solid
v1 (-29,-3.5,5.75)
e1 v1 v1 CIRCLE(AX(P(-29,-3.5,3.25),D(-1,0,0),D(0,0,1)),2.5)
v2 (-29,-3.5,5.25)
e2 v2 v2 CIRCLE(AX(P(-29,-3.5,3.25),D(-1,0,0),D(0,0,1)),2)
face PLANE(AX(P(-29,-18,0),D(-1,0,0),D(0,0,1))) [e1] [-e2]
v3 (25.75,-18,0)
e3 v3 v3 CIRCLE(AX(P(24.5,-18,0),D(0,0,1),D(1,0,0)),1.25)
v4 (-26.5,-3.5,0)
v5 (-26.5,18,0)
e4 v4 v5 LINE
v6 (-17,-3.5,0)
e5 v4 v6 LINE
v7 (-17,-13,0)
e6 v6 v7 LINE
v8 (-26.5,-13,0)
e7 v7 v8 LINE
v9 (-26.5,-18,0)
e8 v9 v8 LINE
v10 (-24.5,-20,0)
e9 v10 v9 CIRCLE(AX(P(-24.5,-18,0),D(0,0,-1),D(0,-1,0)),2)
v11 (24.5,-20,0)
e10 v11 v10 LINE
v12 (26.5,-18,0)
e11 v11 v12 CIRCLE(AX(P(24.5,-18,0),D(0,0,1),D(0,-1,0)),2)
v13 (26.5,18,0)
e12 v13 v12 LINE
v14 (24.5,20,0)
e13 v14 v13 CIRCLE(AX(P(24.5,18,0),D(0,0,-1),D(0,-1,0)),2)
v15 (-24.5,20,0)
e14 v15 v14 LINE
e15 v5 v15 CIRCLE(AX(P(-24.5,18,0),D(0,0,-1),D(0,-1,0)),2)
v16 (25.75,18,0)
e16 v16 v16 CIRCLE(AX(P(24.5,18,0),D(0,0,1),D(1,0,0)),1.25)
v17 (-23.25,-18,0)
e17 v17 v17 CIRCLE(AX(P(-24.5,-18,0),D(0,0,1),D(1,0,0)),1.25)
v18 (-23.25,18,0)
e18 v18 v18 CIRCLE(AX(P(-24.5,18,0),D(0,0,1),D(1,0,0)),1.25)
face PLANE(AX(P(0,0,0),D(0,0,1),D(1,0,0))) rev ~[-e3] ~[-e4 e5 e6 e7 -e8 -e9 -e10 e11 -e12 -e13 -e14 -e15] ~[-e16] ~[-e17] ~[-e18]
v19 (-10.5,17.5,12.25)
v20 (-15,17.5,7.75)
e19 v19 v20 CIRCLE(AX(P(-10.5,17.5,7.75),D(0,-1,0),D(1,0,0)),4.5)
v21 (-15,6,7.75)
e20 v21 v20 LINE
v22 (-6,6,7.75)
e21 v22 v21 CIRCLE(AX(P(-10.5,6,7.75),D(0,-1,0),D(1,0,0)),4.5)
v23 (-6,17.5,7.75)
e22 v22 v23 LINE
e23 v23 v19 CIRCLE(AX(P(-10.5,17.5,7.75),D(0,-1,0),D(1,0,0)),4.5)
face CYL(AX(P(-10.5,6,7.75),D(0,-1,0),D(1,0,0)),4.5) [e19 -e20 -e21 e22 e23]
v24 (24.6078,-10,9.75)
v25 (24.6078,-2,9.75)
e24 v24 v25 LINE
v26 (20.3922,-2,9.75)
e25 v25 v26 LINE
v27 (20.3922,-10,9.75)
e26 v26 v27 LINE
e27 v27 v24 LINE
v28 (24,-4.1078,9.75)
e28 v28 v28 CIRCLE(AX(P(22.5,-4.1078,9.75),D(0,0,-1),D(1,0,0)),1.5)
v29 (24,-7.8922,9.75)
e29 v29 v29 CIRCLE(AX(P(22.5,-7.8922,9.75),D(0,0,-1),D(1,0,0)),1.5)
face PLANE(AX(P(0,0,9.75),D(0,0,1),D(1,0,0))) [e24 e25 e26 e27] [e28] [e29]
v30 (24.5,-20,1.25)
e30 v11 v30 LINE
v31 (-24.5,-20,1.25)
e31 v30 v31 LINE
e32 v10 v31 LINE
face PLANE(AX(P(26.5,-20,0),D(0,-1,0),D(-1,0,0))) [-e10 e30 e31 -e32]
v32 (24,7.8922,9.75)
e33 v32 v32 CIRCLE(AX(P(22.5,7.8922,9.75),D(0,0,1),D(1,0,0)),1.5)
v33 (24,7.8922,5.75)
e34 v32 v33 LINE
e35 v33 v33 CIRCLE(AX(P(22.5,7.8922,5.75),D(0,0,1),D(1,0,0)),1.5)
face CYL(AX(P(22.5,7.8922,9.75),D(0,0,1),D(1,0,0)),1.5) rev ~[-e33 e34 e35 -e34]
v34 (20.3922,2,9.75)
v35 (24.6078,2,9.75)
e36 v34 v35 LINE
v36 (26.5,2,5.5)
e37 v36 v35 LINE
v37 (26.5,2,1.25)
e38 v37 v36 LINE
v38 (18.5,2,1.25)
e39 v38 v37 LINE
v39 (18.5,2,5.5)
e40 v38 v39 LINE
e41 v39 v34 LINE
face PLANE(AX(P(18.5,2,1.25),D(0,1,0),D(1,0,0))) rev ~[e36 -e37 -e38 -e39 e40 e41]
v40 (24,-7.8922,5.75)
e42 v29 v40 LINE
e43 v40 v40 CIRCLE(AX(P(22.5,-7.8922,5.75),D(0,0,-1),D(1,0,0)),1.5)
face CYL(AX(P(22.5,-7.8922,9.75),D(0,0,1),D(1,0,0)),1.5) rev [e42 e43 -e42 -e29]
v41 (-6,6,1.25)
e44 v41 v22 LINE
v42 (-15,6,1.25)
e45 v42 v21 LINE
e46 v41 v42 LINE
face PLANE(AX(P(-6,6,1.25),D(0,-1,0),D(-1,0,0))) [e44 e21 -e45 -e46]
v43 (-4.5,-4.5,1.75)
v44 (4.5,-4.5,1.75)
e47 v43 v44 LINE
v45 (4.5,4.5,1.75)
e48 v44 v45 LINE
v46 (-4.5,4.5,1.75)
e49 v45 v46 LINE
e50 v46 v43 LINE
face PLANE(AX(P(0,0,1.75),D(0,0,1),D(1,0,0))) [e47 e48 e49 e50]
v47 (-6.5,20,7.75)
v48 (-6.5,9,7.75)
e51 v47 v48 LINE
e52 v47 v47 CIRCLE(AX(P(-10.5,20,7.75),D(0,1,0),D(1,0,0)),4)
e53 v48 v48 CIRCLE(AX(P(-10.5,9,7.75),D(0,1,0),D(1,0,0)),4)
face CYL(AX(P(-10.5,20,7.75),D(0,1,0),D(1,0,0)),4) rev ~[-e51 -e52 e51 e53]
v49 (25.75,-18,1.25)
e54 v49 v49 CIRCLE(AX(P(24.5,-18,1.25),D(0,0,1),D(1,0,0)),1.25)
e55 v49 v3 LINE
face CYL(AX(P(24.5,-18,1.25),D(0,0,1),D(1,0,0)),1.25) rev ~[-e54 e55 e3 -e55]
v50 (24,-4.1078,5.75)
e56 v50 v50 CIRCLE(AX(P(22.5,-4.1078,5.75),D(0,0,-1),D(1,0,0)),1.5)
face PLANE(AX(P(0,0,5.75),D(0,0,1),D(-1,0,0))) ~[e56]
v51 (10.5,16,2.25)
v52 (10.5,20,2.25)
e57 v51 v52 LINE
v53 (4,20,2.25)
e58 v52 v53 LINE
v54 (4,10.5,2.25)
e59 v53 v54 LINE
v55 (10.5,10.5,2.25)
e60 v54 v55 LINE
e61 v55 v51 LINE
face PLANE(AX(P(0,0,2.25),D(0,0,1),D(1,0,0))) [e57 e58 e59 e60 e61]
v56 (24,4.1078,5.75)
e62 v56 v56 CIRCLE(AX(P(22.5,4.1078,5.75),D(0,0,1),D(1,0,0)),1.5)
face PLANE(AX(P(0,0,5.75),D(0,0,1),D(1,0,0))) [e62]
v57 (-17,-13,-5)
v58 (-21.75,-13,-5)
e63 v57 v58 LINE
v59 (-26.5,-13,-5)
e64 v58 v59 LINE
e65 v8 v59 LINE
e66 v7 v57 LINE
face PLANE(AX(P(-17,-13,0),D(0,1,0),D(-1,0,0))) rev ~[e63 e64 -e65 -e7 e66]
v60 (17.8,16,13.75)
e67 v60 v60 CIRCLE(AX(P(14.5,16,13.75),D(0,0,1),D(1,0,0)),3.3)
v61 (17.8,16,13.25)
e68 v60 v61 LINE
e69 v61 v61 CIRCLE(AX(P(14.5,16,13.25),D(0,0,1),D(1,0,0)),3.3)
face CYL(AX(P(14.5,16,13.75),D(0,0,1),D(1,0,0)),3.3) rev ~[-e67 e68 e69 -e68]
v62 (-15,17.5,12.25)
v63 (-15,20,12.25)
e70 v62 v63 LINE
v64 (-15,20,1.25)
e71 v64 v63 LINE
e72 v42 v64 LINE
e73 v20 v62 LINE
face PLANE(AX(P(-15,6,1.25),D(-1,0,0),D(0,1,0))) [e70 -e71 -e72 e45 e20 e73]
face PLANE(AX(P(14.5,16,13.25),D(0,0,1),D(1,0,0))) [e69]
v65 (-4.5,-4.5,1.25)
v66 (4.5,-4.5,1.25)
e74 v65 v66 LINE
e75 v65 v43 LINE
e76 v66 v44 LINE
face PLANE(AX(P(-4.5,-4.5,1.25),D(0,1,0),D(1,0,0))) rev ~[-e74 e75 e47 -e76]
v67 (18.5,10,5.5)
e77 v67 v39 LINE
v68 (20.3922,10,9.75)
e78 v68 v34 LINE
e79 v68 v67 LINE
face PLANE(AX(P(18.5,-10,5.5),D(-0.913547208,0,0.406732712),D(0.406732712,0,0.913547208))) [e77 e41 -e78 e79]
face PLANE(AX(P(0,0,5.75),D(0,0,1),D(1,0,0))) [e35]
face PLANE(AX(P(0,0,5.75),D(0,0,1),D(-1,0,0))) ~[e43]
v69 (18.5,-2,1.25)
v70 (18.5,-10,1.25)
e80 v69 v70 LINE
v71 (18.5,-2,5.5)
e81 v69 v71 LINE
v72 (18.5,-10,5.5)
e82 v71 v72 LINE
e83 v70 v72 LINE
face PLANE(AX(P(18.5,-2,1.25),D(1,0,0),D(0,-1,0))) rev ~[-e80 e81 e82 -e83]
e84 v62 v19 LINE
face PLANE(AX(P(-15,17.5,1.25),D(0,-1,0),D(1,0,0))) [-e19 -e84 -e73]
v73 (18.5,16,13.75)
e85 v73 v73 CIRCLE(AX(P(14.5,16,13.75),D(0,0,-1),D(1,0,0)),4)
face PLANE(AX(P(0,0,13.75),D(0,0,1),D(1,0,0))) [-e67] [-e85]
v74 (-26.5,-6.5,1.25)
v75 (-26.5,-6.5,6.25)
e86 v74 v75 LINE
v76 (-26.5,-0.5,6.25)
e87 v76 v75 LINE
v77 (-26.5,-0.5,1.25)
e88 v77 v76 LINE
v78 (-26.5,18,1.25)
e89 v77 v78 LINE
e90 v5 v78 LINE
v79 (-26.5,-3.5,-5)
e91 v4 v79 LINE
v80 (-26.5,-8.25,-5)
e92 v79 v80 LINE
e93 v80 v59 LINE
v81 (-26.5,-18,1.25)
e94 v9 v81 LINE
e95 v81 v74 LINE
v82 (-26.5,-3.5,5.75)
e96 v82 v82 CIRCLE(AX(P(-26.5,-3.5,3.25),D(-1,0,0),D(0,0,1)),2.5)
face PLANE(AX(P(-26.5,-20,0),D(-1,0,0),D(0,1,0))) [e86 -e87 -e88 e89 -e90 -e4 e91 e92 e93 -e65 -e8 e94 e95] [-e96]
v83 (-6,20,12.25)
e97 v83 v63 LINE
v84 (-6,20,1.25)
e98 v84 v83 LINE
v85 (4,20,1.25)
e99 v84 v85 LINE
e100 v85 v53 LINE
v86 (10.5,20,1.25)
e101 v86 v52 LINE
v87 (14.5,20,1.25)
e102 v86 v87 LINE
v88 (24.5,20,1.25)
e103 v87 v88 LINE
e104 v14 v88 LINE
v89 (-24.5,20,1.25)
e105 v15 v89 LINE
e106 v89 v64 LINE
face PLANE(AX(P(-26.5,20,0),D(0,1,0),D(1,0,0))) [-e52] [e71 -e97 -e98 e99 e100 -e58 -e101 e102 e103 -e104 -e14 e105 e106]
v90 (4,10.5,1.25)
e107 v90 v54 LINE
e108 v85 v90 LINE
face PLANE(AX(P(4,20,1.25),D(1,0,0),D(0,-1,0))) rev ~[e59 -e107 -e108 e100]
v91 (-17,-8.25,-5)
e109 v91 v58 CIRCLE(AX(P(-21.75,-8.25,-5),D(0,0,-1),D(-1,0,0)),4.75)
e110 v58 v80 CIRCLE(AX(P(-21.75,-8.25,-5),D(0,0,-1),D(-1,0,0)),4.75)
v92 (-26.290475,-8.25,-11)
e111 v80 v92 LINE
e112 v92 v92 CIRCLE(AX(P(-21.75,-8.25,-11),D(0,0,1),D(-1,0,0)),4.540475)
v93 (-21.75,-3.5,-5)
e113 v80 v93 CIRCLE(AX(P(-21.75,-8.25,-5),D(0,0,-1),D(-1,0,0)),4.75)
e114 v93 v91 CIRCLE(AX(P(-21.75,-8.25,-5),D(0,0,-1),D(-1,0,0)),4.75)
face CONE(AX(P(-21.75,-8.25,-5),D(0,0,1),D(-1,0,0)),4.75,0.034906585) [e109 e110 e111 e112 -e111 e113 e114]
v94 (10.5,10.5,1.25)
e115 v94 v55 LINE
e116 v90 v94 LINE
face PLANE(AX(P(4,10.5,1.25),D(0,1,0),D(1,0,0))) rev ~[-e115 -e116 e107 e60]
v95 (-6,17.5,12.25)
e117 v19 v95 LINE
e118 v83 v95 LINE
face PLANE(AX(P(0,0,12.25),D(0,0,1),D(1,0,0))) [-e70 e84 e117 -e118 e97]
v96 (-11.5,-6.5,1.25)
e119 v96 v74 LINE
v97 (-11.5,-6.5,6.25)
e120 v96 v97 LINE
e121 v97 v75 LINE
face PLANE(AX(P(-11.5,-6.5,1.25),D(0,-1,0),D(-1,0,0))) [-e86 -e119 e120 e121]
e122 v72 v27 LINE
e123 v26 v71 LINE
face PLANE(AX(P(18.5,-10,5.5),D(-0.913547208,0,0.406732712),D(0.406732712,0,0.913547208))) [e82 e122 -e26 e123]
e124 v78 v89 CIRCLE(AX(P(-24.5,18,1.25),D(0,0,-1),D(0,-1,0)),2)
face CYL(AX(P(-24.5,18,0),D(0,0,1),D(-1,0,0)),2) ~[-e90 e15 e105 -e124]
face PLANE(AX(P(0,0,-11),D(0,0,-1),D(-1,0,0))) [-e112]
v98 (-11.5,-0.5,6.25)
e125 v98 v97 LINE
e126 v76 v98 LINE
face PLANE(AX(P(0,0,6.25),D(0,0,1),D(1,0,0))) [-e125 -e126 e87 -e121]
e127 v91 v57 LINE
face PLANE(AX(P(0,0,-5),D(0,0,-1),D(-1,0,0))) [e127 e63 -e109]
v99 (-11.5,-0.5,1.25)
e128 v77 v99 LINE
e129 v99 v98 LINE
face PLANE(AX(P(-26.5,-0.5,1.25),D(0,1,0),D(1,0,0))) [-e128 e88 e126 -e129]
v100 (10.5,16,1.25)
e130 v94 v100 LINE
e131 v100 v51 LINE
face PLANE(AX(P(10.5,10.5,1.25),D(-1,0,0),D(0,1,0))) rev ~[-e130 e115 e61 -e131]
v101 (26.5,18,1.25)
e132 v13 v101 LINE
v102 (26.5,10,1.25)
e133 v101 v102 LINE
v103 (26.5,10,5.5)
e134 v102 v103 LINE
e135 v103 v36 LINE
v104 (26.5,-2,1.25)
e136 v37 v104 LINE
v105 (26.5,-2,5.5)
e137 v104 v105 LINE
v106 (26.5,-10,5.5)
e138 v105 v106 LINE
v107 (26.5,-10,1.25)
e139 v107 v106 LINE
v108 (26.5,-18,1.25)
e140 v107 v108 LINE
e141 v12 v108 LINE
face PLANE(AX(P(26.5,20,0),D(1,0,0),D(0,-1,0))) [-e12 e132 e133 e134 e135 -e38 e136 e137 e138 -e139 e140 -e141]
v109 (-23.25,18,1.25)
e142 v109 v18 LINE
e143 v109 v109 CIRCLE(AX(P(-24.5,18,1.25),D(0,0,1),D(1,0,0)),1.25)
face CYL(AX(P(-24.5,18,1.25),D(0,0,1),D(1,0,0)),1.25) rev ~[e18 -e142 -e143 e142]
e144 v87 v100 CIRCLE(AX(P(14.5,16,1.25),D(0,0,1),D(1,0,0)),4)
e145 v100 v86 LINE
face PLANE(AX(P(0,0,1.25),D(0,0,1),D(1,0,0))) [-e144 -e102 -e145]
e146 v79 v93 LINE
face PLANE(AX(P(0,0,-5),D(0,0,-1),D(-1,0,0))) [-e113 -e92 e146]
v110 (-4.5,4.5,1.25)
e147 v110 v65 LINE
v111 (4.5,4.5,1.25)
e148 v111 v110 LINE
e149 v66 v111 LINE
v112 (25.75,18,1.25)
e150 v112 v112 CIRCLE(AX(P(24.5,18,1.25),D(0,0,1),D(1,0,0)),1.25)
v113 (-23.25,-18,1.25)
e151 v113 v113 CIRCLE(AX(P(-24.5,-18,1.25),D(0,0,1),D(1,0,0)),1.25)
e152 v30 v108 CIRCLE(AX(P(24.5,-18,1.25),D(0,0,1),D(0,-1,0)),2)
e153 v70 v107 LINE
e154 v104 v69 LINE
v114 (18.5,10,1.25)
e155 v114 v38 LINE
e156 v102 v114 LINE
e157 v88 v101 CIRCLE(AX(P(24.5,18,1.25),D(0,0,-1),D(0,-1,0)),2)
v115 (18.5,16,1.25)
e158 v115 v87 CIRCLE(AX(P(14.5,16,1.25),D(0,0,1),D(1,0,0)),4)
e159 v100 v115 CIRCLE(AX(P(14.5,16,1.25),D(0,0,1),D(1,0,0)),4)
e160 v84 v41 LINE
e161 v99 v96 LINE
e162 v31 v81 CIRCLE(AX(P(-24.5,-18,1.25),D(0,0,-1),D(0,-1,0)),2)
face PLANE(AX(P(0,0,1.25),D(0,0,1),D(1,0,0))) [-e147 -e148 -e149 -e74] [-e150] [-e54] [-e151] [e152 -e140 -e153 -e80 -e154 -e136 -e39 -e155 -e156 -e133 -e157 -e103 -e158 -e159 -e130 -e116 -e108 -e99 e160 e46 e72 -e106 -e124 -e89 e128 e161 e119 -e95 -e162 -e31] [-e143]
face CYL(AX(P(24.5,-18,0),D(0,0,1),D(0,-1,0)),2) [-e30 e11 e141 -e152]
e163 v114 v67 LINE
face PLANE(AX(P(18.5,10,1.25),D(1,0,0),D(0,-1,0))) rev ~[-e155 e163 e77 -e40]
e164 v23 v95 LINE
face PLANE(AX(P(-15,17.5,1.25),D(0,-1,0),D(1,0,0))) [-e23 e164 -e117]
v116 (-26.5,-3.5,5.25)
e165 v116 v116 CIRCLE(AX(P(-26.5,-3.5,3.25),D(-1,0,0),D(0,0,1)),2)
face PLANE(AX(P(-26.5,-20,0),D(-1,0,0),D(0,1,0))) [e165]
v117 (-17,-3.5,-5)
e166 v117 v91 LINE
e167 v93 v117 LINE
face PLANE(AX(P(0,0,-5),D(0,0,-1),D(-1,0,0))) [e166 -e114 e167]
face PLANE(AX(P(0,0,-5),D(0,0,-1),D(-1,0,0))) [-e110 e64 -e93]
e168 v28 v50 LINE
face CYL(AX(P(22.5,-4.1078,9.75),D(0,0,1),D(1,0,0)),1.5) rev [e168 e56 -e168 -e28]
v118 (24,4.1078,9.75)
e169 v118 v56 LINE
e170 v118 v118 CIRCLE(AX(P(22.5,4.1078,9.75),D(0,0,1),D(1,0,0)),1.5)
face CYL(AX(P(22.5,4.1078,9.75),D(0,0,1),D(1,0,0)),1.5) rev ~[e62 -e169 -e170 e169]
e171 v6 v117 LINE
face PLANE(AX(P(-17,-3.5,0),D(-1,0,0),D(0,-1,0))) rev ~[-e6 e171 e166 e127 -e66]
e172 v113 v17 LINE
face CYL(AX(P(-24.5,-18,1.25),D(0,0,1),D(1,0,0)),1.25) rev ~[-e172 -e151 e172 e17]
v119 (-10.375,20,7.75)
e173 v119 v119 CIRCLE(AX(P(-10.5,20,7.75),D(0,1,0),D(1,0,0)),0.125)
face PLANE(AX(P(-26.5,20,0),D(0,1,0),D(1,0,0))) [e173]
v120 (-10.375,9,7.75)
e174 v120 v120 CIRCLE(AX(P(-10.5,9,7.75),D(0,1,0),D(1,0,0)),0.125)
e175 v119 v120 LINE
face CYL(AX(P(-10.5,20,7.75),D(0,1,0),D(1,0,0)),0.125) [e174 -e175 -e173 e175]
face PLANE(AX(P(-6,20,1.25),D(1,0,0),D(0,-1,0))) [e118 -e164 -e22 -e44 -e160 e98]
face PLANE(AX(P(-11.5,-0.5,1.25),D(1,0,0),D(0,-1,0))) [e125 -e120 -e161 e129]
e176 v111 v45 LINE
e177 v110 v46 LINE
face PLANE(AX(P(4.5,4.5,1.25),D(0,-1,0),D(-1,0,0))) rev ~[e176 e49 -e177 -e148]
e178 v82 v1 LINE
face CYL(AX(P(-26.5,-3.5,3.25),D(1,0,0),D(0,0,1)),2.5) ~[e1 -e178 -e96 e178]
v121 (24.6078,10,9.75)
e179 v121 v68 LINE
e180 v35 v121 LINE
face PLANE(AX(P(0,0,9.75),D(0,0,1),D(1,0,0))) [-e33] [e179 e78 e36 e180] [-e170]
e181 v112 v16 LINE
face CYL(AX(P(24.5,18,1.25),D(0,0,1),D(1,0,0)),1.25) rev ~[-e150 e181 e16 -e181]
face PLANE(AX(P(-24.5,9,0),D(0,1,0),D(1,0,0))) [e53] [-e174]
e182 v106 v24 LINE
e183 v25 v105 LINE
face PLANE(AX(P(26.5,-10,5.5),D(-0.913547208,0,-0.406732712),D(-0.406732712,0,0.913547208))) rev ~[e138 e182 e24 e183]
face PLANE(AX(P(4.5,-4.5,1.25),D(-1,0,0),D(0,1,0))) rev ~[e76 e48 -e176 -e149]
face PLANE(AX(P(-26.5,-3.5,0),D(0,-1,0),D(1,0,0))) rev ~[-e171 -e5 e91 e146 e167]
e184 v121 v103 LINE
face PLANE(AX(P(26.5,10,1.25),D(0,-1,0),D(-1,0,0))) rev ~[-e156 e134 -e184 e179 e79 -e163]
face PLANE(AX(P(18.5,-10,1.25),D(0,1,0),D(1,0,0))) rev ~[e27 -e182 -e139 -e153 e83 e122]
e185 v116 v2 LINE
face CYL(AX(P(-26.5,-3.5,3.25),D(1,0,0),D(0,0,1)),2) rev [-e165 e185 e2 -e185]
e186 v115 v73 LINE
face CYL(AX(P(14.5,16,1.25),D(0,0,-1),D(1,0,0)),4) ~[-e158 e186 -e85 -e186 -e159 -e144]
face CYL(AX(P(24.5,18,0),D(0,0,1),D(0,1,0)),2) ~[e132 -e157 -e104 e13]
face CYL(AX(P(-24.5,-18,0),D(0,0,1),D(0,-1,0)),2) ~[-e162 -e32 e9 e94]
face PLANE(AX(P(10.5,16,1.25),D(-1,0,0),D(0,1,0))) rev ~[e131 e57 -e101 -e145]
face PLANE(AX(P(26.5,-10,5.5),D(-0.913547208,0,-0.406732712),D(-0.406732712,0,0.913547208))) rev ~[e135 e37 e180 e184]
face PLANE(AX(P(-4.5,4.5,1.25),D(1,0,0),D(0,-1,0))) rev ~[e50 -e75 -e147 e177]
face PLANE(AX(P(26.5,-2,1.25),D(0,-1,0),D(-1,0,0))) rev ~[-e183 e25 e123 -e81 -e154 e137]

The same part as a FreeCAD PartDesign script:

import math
import FreeCAD as App
import Part
import Sketcher

V = App.Vector
Q = App.Units.Quantity


def edges_at(feature, points):
    """Names of the edges that pass closest to the given points."""
    edges = feature.Shape.Edges
    near = lambda p: min(range(len(edges)), key=lambda i: edges[i].distToShape(Part.Vertex(*p))[0])
    return sorted({f"Edge{near(p) + 1}" for p in points})

doc = App.newDocument("Part")
body = doc.addObject("PartDesign::Body", "Body")

# Sketch on XY plane
sketch1 = doc.addObject("Sketcher::SketchObject", "Sketch")
body.addObject(sketch1)
sketch1.AttachmentSupport = (doc.XY_Plane, [""])
sketch1.MapMode = "FlatFace"
sketch1.addGeometry([
    Part.LineSegment(V(-26.5, -20, 0), V(26.5, -20, 0)),
    Part.LineSegment(V(26.5, -20, 0), V(26.5, 20, 0)),
    Part.LineSegment(V(26.5, 20, 0), V(-26.5, 20, 0)),
    Part.LineSegment(V(-26.5, 20, 0), V(-26.5, -20, 0)),
], False)
sketch1.addConstraint([
    Sketcher.Constraint("Coincident", 0, 2, 1, 1),
    Sketcher.Constraint("Coincident", 1, 2, 2, 1),
    Sketcher.Constraint("Coincident", 2, 2, 3, 1),
    Sketcher.Constraint("Coincident", 3, 2, 0, 1),
    Sketcher.Constraint("Horizontal", 0),
    Sketcher.Constraint("Vertical", 1),
    Sketcher.Constraint("Horizontal", 2),
    Sketcher.Constraint("Vertical", 3),
    Sketcher.Constraint("Symmetric", 0, 2, 2, 2, -1, 1),
    Sketcher.Constraint("DistanceX", 0, 1, 0, 2, 53.0),
    Sketcher.Constraint("DistanceY", 1, 1, 1, 2, 40.0),
])
pad1 = doc.addObject("PartDesign::Pad", "Pad")
body.addObject(pad1)
pad1.Profile = sketch1
pad1.Length = 1.25
doc.recompute()

fillet = doc.addObject("PartDesign::Fillet", "Fillet")
body.addObject(fillet)
fillet.Base = (pad1, edges_at(pad1, [
    (-26.5, 20, 0.625),
    (26.5, 20, 0.625),
    (-26.5, -20, 0.625),
    (26.5, -20, 0.625),
]))
fillet.Radius = 2

# Sketch on XY plane
sketch2 = doc.addObject("Sketcher::SketchObject", "Sketch001")
body.addObject(sketch2)
sketch2.AttachmentSupport = (doc.XY_Plane, [""])
sketch2.MapMode = "FlatFace"
sketch2.AttachmentOffset = App.Placement(V(0, 0, 1.25), App.Rotation())
sketch2.addGeometry([
    Part.Circle(V(-24.5, 18, 0), V(0, 0, 1), 1.25),
    Part.Circle(V(24.5, 18, 0), V(0, 0, 1), 1.25),
    Part.Circle(V(-24.5, -18, 0), V(0, 0, 1), 1.25),
    Part.Circle(V(24.5, -18, 0), V(0, 0, 1), 1.25),
], False)
sketch2.addConstraint([
    Sketcher.Constraint("Equal", 0, 1),
    Sketcher.Constraint("Equal", 1, 2),
    Sketcher.Constraint("Equal", 2, 3),
    Sketcher.Constraint("Symmetric", 1, 3, 2, 3, -1, 1),
    Sketcher.Constraint("Symmetric", 0, 3, 3, 3, -1, 1),
    Sketcher.Constraint("Symmetric", 0, 3, 1, 3, -2),
    Sketcher.Constraint("Diameter", 0, 2.5),
    Sketcher.Constraint("DistanceY", -1, 1, 0, 3, 18.0),
    Sketcher.Constraint("DistanceX", 0, 3, 1, 3, 49.0),
])
pocket1 = doc.addObject("PartDesign::Pocket", "Pocket")
body.addObject(pocket1)
pocket1.Profile = sketch2
pocket1.Type = "ThroughAll"

# Sketch on XY plane
sketch3 = doc.addObject("Sketcher::SketchObject", "Sketch002")
body.addObject(sketch3)
sketch3.AttachmentSupport = (doc.XY_Plane, [""])
sketch3.MapMode = "FlatFace"
sketch3.AttachmentOffset = App.Placement(V(0, 0, 1.25), App.Rotation())
sketch3.addGeometry([
    Part.LineSegment(V(26.5, 2, 0), V(26.5, 10, 0)),  # 0
    Part.LineSegment(V(26.5, 10, 0), V(18.5, 10, 0)),  # 1
    Part.LineSegment(V(18.5, 10, 0), V(18.5, 2, 0)),  # 2
    Part.LineSegment(V(18.5, 2, 0), V(26.5, 2, 0)),  # 3
    Part.LineSegment(V(26.5, -10, 0), V(26.5, -2, 0)),  # 4
    Part.LineSegment(V(26.5, -2, 0), V(18.5, -2, 0)),  # 5
    Part.LineSegment(V(18.5, -2, 0), V(18.5, -10, 0)),  # 6
    Part.LineSegment(V(18.5, -10, 0), V(26.5, -10, 0)),  # 7
], False)
sketch3.addConstraint([
    Sketcher.Constraint("Coincident", 0, 2, 1, 1),
    Sketcher.Constraint("Coincident", 1, 2, 2, 1),
    Sketcher.Constraint("Coincident", 2, 2, 3, 1),
    Sketcher.Constraint("Coincident", 3, 2, 0, 1),
    Sketcher.Constraint("Coincident", 4, 2, 5, 1),
    Sketcher.Constraint("Coincident", 5, 2, 6, 1),
    Sketcher.Constraint("Coincident", 6, 2, 7, 1),
    Sketcher.Constraint("Coincident", 7, 2, 4, 1),
    Sketcher.Constraint("Vertical", 0),
    Sketcher.Constraint("Horizontal", 1),
    Sketcher.Constraint("Vertical", 2),
    Sketcher.Constraint("Horizontal", 3),
    Sketcher.Constraint("Vertical", 4),
    Sketcher.Constraint("Horizontal", 5),
    Sketcher.Constraint("Vertical", 6),
    Sketcher.Constraint("Horizontal", 7),
    Sketcher.Constraint("Symmetric", 3, 2, 4, 2, -1),
    Sketcher.Constraint("Symmetric", 1, 2, 6, 2, -1),
    Sketcher.Constraint("Equal", 7, 0),
    Sketcher.Constraint("DistanceX", 1, 2, 1, 1, 8.0),
    Sketcher.Constraint("DistanceY", -1, 1, 0, 2, 10.0),
    Sketcher.Constraint("DistanceX", -1, 1, 0, 2, 26.5),
])
pad2 = doc.addObject("PartDesign::Pad", "Pad001")
body.addObject(pad2)
pad2.Profile = sketch3
pad2.Length = 8.5

# Sketch on XZ plane
sketch4 = doc.addObject("Sketcher::SketchObject", "Sketch003")
body.addObject(sketch4)
sketch4.AttachmentSupport = (doc.XZ_Plane, [""])
sketch4.MapMode = "FlatFace"
sketch4.AttachmentOffset = App.Placement(V(0, 0, 10), App.Rotation())
sketch4.addGeometry([
    Part.LineSegment(V(18.5, 9.75, 0), V(18.5, 5.5, 0)),  # 0
    Part.LineSegment(V(18.5, 5.5, 0), V(20.3922, 9.75, 0)),  # 1
    Part.LineSegment(V(20.3922, 9.75, 0), V(18.5, 9.75, 0)),  # 2
    Part.LineSegment(V(24.6078, 9.75, 0), V(26.5, 5.5, 0)),  # 3
    Part.LineSegment(V(26.5, 5.5, 0), V(26.5, 9.75, 0)),  # 4
    Part.LineSegment(V(26.5, 9.75, 0), V(24.6078, 9.75, 0)),  # 5
], False)
sketch4.addConstraint([
    Sketcher.Constraint("Coincident", 0, 2, 1, 1),
    Sketcher.Constraint("Coincident", 1, 2, 2, 1),
    Sketcher.Constraint("Coincident", 2, 2, 0, 1),
    Sketcher.Constraint("Coincident", 3, 2, 4, 1),
    Sketcher.Constraint("Coincident", 4, 2, 5, 1),
    Sketcher.Constraint("Coincident", 5, 2, 3, 1),
    Sketcher.Constraint("Vertical", 0),
    Sketcher.Constraint("Horizontal", 2),
    Sketcher.Constraint("Vertical", 4),
    Sketcher.Constraint("Horizontal", 5),
    Sketcher.Constraint("Horizontal", 0, 2, 3, 2),
    Sketcher.Constraint("Horizontal", 2, 2, 4, 2),
    Sketcher.Constraint("Equal", 2, 5),
    Sketcher.Constraint("Angle", 1, Q("66.0002 deg")),
    Sketcher.Constraint("DistanceX", 0, 2, 3, 2, 8.0),
    Sketcher.Constraint("DistanceY", 0, 2, 0, 1, 4.25),
    Sketcher.Constraint("DistanceX", -1, 1, 0, 2, 18.5),
    Sketcher.Constraint("DistanceY", -1, 1, 0, 2, 5.5),
])
pocket2 = doc.addObject("PartDesign::Pocket", "Pocket001")
body.addObject(pocket2)
pocket2.Profile = sketch4
pocket2.Type = "ThroughAll"
pocket2.Midplane = True

# Sketch on XY plane
sketch5 = doc.addObject("Sketcher::SketchObject", "Sketch004")
body.addObject(sketch5)
sketch5.AttachmentSupport = (doc.XY_Plane, [""])
sketch5.MapMode = "FlatFace"
sketch5.AttachmentOffset = App.Placement(V(0, 0, 9.75), App.Rotation())
sketch5.addGeometry([
    Part.Circle(V(22.5, 7.8922, 0), V(0, 0, 1), 1.5),
    Part.Circle(V(22.5, 4.1078, 0), V(0, 0, 1), 1.5),
], False)
sketch5.addConstraint([
    Sketcher.Constraint("Equal", 0, 1),
    Sketcher.Constraint("Vertical", 0, 3, 1, 3),
    Sketcher.Constraint("Diameter", 0, 3.0),
    Sketcher.Constraint("DistanceX", -1, 1, 0, 3, 22.5),
    Sketcher.Constraint("DistanceY", -1, 1, 0, 3, 7.8922),
    Sketcher.Constraint("DistanceY", -1, 1, 1, 3, 4.1078),
])
pocket3 = doc.addObject("PartDesign::Pocket", "Pocket002")
body.addObject(pocket3)
pocket3.Profile = sketch5
pocket3.Length = 4
doc.recompute()

mirrored = doc.addObject("PartDesign::Mirrored", "Mirrored")
body.addObject(mirrored)
mirrored.Originals = [pocket3]
mirrored.MirrorPlane = (doc.XZ_Plane, [""])
body.Tip = mirrored

# Sketch on XY plane
sketch6 = doc.addObject("Sketcher::SketchObject", "Sketch005")
body.addObject(sketch6)
sketch6.AttachmentSupport = (doc.XY_Plane, [""])
sketch6.MapMode = "FlatFace"
sketch6.AttachmentOffset = App.Placement(V(0, 0, 1.25), App.Rotation())
sketch6.addGeometry(Part.Circle(V(14.5, 16, 0), V(0, 0, 1), 4), False)
sketch6.addConstraint([
    Sketcher.Constraint("Diameter", 0, 8.0),
    Sketcher.Constraint("DistanceY", -1, 1, 0, 3, 16.0),
    Sketcher.Constraint("DistanceX", -1, 1, 0, 3, 14.5),
])
pad3 = doc.addObject("PartDesign::Pad", "Pad002")
body.addObject(pad3)
pad3.Profile = sketch6
pad3.Length = 12.5

# Sketch on XY plane
sketch7 = doc.addObject("Sketcher::SketchObject", "Sketch006")
body.addObject(sketch7)
sketch7.AttachmentSupport = (doc.XY_Plane, [""])
sketch7.MapMode = "FlatFace"
sketch7.AttachmentOffset = App.Placement(V(0, 0, 13.75), App.Rotation())
sketch7.addGeometry(Part.Circle(V(14.5, 16, 0), V(0, 0, 1), 3.3), False)
sketch7.addConstraint([
    Sketcher.Constraint("Diameter", 0, 6.6),
    Sketcher.Constraint("DistanceY", -1, 1, 0, 3, 16.0),
    Sketcher.Constraint("DistanceX", -1, 1, 0, 3, 14.5),
])
pocket4 = doc.addObject("PartDesign::Pocket", "Pocket003")
body.addObject(pocket4)
pocket4.Profile = sketch7
pocket4.Length = 0.5

# Sketch on XY plane
sketch8 = doc.addObject("Sketcher::SketchObject", "Sketch007")
body.addObject(sketch8)
sketch8.AttachmentSupport = (doc.XY_Plane, [""])
sketch8.MapMode = "FlatFace"
sketch8.AttachmentOffset = App.Placement(V(0, 0, 1.25), App.Rotation())
sketch8.addGeometry([
    Part.LineSegment(V(-11.5, -0.5, 0), V(-26.5, -0.5, 0)),
    Part.LineSegment(V(-26.5, -0.5, 0), V(-26.5, -6.5, 0)),
    Part.LineSegment(V(-26.5, -6.5, 0), V(-11.5, -6.5, 0)),
    Part.LineSegment(V(-11.5, -6.5, 0), V(-11.5, -0.5, 0)),
], False)
sketch8.addConstraint([
    Sketcher.Constraint("Coincident", 0, 2, 1, 1),
    Sketcher.Constraint("Coincident", 1, 2, 2, 1),
    Sketcher.Constraint("Coincident", 2, 2, 3, 1),
    Sketcher.Constraint("Coincident", 3, 2, 0, 1),
    Sketcher.Constraint("Horizontal", 0),
    Sketcher.Constraint("Vertical", 1),
    Sketcher.Constraint("Horizontal", 2),
    Sketcher.Constraint("Vertical", 3),
    Sketcher.Constraint("DistanceX", 0, 2, 0, 1, 15.0),
    Sketcher.Constraint("DistanceY", 1, 2, 1, 1, 6.0),
    Sketcher.Constraint("DistanceX", 0, 2, -1, 1, 26.5),
    Sketcher.Constraint("DistanceY", 0, 2, -1, 1, 0.5),
])
pad4 = doc.addObject("PartDesign::Pad", "Pad003")
body.addObject(pad4)
pad4.Profile = sketch8
pad4.Length = 5

# Sketch on YZ plane
sketch9 = doc.addObject("Sketcher::SketchObject", "Sketch008")
body.addObject(sketch9)
sketch9.AttachmentSupport = (doc.YZ_Plane, [""])
sketch9.MapMode = "FlatFace"
sketch9.AttachmentOffset = App.Placement(V(0, 0, -26.5), App.Rotation())
sketch9.addGeometry([
    Part.Circle(V(-3.5, 3.25, 0), V(0, 0, 1), 2.5),
    Part.Circle(V(-3.5, 3.25, 0), V(0, 0, 1), 2),
], False)
sketch9.addConstraint([
    Sketcher.Constraint("Coincident", 1, 3, 0, 3),
    Sketcher.Constraint("Diameter", 0, 5.0),
    Sketcher.Constraint("Diameter", 1, 4.0),
    Sketcher.Constraint("DistanceX", 0, 3, -1, 1, 3.5),
    Sketcher.Constraint("DistanceY", -1, 1, 0, 3, 3.25),
])
pad5 = doc.addObject("PartDesign::Pad", "Pad004")
body.addObject(pad5)
pad5.Profile = sketch9
pad5.Length = 2.5
pad5.Reversed = True

# Sketch on XY plane
sketch10 = doc.addObject("Sketcher::SketchObject", "Sketch009")
body.addObject(sketch10)
sketch10.AttachmentSupport = (doc.XY_Plane, [""])
sketch10.MapMode = "FlatFace"
sketch10.AttachmentOffset = App.Placement(V(0, 0, 1.25), App.Rotation())
sketch10.addGeometry([
    Part.LineSegment(V(-6, 6, 0), V(-6, 20, 0)),
    Part.LineSegment(V(-6, 20, 0), V(-15, 20, 0)),
    Part.LineSegment(V(-15, 20, 0), V(-15, 6, 0)),
    Part.LineSegment(V(-15, 6, 0), V(-6, 6, 0)),
], False)
sketch10.addConstraint([
    Sketcher.Constraint("Coincident", 0, 2, 1, 1),
    Sketcher.Constraint("Coincident", 1, 2, 2, 1),
    Sketcher.Constraint("Coincident", 2, 2, 3, 1),
    Sketcher.Constraint("Coincident", 3, 2, 0, 1),
    Sketcher.Constraint("Vertical", 0),
    Sketcher.Constraint("Horizontal", 1),
    Sketcher.Constraint("Vertical", 2),
    Sketcher.Constraint("Horizontal", 3),
    Sketcher.Constraint("DistanceX", 1, 2, 1, 1, 9.0),
    Sketcher.Constraint("DistanceY", 0, 1, 0, 2, 14.0),
    Sketcher.Constraint("DistanceX", 0, 2, -1, 1, 6.0),
    Sketcher.Constraint("DistanceY", -1, 1, 0, 2, 20.0),
])
pad6 = doc.addObject("PartDesign::Pad", "Pad005")
body.addObject(pad6)
pad6.Profile = sketch10
pad6.Length = 11

# Sketch on XZ plane
sketch11 = doc.addObject("Sketcher::SketchObject", "Sketch010")
body.addObject(sketch11)
sketch11.AttachmentSupport = (doc.XZ_Plane, [""])
sketch11.MapMode = "FlatFace"
sketch11.AttachmentOffset = App.Placement(V(0, 0, -20), App.Rotation())
sketch11.addGeometry([
    Part.Circle(V(-10.5, 7.75, 0), V(0, 0, 1), 4),
    Part.Circle(V(-10.5, 7.75, 0), V(0, 0, 1), 0.125),
], False)
sketch11.addConstraint([
    Sketcher.Constraint("Coincident", 1, 3, 0, 3),
    Sketcher.Constraint("Diameter", 1, 0.25),
    Sketcher.Constraint("Diameter", 0, 8.0),
    Sketcher.Constraint("DistanceX", 0, 3, -1, 1, 10.5),
    Sketcher.Constraint("DistanceY", -1, 1, 0, 3, 7.75),
])
pocket5 = doc.addObject("PartDesign::Pocket", "Pocket004")
body.addObject(pocket5)
pocket5.Profile = sketch11
pocket5.Length = 11
pocket5.Reversed = True

# Sketch on XY plane
sketch12 = doc.addObject("Sketcher::SketchObject", "Sketch011")
body.addObject(sketch12)
sketch12.AttachmentSupport = (doc.XY_Plane, [""])
sketch12.MapMode = "FlatFace"
sketch12.AttachmentOffset = App.Placement(V(0, 0, 1.25), App.Rotation())
sketch12.addGeometry([
    Part.LineSegment(V(-4.5, 4.5, 0), V(-4.5, -4.5, 0)),
    Part.LineSegment(V(-4.5, -4.5, 0), V(4.5, -4.5, 0)),
    Part.LineSegment(V(4.5, -4.5, 0), V(4.5, 4.5, 0)),
    Part.LineSegment(V(4.5, 4.5, 0), V(-4.5, 4.5, 0)),
], False)
sketch12.addConstraint([
    Sketcher.Constraint("Coincident", 0, 2, 1, 1),
    Sketcher.Constraint("Coincident", 1, 2, 2, 1),
    Sketcher.Constraint("Coincident", 2, 2, 3, 1),
    Sketcher.Constraint("Coincident", 3, 2, 0, 1),
    Sketcher.Constraint("Vertical", 0),
    Sketcher.Constraint("Horizontal", 1),
    Sketcher.Constraint("Vertical", 2),
    Sketcher.Constraint("Horizontal", 3),
    Sketcher.Constraint("Symmetric", 0, 2, 2, 2, -1, 1),
    Sketcher.Constraint("Equal", 3, 0),
    Sketcher.Constraint("DistanceX", 1, 1, 1, 2, 9.0),
])
pad7 = doc.addObject("PartDesign::Pad", "Pad006")
body.addObject(pad7)
pad7.Profile = sketch12
pad7.Length = 0.5

# Sketch on XZ plane
sketch13 = doc.addObject("Sketcher::SketchObject", "Sketch012")
body.addObject(sketch13)
sketch13.AttachmentSupport = (doc.XZ_Plane, [""])
sketch13.MapMode = "FlatFace"
sketch13.AttachmentOffset = App.Placement(V(0, 0, -6), App.Rotation())
sketch13.addGeometry([
    Part.ArcOfCircle(Part.Circle(V(-10.5, 7.75, 0), V(0, 0, 1), 4.5), math.radians(0), math.radians(90)),  # 0
    Part.LineSegment(V(-6, 7.75, 0), V(-6, 12.25, 0)),  # 1
    Part.LineSegment(V(-6, 12.25, 0), V(-10.5, 12.25, 0)),  # 2
    Part.ArcOfCircle(Part.Circle(V(-10.5, 7.75, 0), V(0, 0, 1), 4.5), math.radians(90), math.radians(180)),  # 3
    Part.LineSegment(V(-10.5, 12.25, 0), V(-15, 12.25, 0)),  # 4
    Part.LineSegment(V(-15, 12.25, 0), V(-15, 7.75, 0)),  # 5
], False)
sketch13.addConstraint([
    Sketcher.Constraint("Tangent", 0, 1, 1, 1),
    Sketcher.Constraint("Coincident", 1, 2, 2, 1),
    Sketcher.Constraint("Tangent", 2, 2, 0, 2),
    Sketcher.Constraint("Tangent", 3, 1, 4, 1),
    Sketcher.Constraint("Coincident", 4, 2, 5, 1),
    Sketcher.Constraint("Tangent", 5, 2, 3, 2),
    Sketcher.Constraint("Vertical", 1),
    Sketcher.Constraint("Horizontal", 2),
    Sketcher.Constraint("Horizontal", 4),
    Sketcher.Constraint("Vertical", 5),
    Sketcher.Constraint("Coincident", 3, 3, 0, 3),
    Sketcher.Constraint("Equal", 0, 3),
    Sketcher.Constraint("Radius", 0, 4.5),
    Sketcher.Constraint("DistanceX", 0, 1, -1, 1, 6.0),
    Sketcher.Constraint("DistanceY", -1, 1, 0, 3, 7.75),
])
pocket6 = doc.addObject("PartDesign::Pocket", "Pocket005")
body.addObject(pocket6)
pocket6.Profile = sketch13
pocket6.Length = 11.5

# Sketch on XY plane
sketch14 = doc.addObject("Sketcher::SketchObject", "Sketch013")
body.addObject(sketch14)
sketch14.AttachmentSupport = (doc.XY_Plane, [""])
sketch14.MapMode = "FlatFace"
sketch14.AttachmentOffset = App.Placement(V(0, 0, 1.25), App.Rotation())
sketch14.addGeometry([
    Part.LineSegment(V(10.5, 10.5, 0), V(10.5, 20, 0)),
    Part.LineSegment(V(10.5, 20, 0), V(4, 20, 0)),
    Part.LineSegment(V(4, 20, 0), V(4, 10.5, 0)),
    Part.LineSegment(V(4, 10.5, 0), V(10.5, 10.5, 0)),
], False)
sketch14.addConstraint([
    Sketcher.Constraint("Coincident", 0, 2, 1, 1),
    Sketcher.Constraint("Coincident", 1, 2, 2, 1),
    Sketcher.Constraint("Coincident", 2, 2, 3, 1),
    Sketcher.Constraint("Coincident", 3, 2, 0, 1),
    Sketcher.Constraint("Vertical", 0),
    Sketcher.Constraint("Horizontal", 1),
    Sketcher.Constraint("Vertical", 2),
    Sketcher.Constraint("Horizontal", 3),
    Sketcher.Constraint("DistanceX", 1, 2, 1, 1, 6.5),
    Sketcher.Constraint("DistanceY", 0, 1, 0, 2, 9.5),
    Sketcher.Constraint("DistanceY", -1, 1, 0, 2, 20.0),
    Sketcher.Constraint("DistanceX", -1, 1, 1, 2, 4.0),
])
pad8 = doc.addObject("PartDesign::Pad", "Pad007")
body.addObject(pad8)
pad8.Profile = sketch14
pad8.Length = 1

# Sketch on XY plane
sketch15 = doc.addObject("Sketcher::SketchObject", "Sketch014")
body.addObject(sketch15)
sketch15.AttachmentSupport = (doc.XY_Plane, [""])
sketch15.MapMode = "FlatFace"
sketch15.addGeometry([
    Part.LineSegment(V(-26.5, -13, 0), V(-26.5, -3.5, 0)),
    Part.LineSegment(V(-26.5, -3.5, 0), V(-17, -3.5, 0)),
    Part.LineSegment(V(-17, -3.5, 0), V(-17, -13, 0)),
    Part.LineSegment(V(-17, -13, 0), V(-26.5, -13, 0)),
], False)
sketch15.addConstraint([
    Sketcher.Constraint("Coincident", 0, 2, 1, 1),
    Sketcher.Constraint("Coincident", 1, 2, 2, 1),
    Sketcher.Constraint("Coincident", 2, 2, 3, 1),
    Sketcher.Constraint("Coincident", 3, 2, 0, 1),
    Sketcher.Constraint("Vertical", 0),
    Sketcher.Constraint("Horizontal", 1),
    Sketcher.Constraint("Vertical", 2),
    Sketcher.Constraint("Horizontal", 3),
    Sketcher.Constraint("Equal", 3, 0),
    Sketcher.Constraint("DistanceX", 1, 1, 1, 2, 9.5),
    Sketcher.Constraint("DistanceX", 1, 2, -1, 1, 17.0),
    Sketcher.Constraint("DistanceY", 2, 2, -1, 1, 13.0),
])
pad9 = doc.addObject("PartDesign::Pad", "Pad008")
body.addObject(pad9)
pad9.Profile = sketch15
pad9.Length = 5
pad9.Reversed = True

# Sketch on XY plane
sketch16 = doc.addObject("Sketcher::SketchObject", "Sketch015")
body.addObject(sketch16)
sketch16.AttachmentSupport = (doc.XY_Plane, [""])
sketch16.MapMode = "FlatFace"
sketch16.AttachmentOffset = App.Placement(V(0, 0, -5), App.Rotation())
sketch16.addGeometry(Part.Circle(V(-21.75, -8.25, 0), V(0, 0, 1), 4.75), False)
sketch16.addConstraint([
    Sketcher.Constraint("Diameter", 0, 9.5),
    Sketcher.Constraint("DistanceX", 0, 3, -1, 1, 21.75),
    Sketcher.Constraint("DistanceY", 0, 3, -1, 1, 8.25),
])
pad10 = doc.addObject("PartDesign::Pad", "Pad009")
body.addObject(pad10)
pad10.Profile = sketch16
pad10.Length = 6
pad10.Reversed = True
pad10.TaperAngle = -2

doc.recompute()
